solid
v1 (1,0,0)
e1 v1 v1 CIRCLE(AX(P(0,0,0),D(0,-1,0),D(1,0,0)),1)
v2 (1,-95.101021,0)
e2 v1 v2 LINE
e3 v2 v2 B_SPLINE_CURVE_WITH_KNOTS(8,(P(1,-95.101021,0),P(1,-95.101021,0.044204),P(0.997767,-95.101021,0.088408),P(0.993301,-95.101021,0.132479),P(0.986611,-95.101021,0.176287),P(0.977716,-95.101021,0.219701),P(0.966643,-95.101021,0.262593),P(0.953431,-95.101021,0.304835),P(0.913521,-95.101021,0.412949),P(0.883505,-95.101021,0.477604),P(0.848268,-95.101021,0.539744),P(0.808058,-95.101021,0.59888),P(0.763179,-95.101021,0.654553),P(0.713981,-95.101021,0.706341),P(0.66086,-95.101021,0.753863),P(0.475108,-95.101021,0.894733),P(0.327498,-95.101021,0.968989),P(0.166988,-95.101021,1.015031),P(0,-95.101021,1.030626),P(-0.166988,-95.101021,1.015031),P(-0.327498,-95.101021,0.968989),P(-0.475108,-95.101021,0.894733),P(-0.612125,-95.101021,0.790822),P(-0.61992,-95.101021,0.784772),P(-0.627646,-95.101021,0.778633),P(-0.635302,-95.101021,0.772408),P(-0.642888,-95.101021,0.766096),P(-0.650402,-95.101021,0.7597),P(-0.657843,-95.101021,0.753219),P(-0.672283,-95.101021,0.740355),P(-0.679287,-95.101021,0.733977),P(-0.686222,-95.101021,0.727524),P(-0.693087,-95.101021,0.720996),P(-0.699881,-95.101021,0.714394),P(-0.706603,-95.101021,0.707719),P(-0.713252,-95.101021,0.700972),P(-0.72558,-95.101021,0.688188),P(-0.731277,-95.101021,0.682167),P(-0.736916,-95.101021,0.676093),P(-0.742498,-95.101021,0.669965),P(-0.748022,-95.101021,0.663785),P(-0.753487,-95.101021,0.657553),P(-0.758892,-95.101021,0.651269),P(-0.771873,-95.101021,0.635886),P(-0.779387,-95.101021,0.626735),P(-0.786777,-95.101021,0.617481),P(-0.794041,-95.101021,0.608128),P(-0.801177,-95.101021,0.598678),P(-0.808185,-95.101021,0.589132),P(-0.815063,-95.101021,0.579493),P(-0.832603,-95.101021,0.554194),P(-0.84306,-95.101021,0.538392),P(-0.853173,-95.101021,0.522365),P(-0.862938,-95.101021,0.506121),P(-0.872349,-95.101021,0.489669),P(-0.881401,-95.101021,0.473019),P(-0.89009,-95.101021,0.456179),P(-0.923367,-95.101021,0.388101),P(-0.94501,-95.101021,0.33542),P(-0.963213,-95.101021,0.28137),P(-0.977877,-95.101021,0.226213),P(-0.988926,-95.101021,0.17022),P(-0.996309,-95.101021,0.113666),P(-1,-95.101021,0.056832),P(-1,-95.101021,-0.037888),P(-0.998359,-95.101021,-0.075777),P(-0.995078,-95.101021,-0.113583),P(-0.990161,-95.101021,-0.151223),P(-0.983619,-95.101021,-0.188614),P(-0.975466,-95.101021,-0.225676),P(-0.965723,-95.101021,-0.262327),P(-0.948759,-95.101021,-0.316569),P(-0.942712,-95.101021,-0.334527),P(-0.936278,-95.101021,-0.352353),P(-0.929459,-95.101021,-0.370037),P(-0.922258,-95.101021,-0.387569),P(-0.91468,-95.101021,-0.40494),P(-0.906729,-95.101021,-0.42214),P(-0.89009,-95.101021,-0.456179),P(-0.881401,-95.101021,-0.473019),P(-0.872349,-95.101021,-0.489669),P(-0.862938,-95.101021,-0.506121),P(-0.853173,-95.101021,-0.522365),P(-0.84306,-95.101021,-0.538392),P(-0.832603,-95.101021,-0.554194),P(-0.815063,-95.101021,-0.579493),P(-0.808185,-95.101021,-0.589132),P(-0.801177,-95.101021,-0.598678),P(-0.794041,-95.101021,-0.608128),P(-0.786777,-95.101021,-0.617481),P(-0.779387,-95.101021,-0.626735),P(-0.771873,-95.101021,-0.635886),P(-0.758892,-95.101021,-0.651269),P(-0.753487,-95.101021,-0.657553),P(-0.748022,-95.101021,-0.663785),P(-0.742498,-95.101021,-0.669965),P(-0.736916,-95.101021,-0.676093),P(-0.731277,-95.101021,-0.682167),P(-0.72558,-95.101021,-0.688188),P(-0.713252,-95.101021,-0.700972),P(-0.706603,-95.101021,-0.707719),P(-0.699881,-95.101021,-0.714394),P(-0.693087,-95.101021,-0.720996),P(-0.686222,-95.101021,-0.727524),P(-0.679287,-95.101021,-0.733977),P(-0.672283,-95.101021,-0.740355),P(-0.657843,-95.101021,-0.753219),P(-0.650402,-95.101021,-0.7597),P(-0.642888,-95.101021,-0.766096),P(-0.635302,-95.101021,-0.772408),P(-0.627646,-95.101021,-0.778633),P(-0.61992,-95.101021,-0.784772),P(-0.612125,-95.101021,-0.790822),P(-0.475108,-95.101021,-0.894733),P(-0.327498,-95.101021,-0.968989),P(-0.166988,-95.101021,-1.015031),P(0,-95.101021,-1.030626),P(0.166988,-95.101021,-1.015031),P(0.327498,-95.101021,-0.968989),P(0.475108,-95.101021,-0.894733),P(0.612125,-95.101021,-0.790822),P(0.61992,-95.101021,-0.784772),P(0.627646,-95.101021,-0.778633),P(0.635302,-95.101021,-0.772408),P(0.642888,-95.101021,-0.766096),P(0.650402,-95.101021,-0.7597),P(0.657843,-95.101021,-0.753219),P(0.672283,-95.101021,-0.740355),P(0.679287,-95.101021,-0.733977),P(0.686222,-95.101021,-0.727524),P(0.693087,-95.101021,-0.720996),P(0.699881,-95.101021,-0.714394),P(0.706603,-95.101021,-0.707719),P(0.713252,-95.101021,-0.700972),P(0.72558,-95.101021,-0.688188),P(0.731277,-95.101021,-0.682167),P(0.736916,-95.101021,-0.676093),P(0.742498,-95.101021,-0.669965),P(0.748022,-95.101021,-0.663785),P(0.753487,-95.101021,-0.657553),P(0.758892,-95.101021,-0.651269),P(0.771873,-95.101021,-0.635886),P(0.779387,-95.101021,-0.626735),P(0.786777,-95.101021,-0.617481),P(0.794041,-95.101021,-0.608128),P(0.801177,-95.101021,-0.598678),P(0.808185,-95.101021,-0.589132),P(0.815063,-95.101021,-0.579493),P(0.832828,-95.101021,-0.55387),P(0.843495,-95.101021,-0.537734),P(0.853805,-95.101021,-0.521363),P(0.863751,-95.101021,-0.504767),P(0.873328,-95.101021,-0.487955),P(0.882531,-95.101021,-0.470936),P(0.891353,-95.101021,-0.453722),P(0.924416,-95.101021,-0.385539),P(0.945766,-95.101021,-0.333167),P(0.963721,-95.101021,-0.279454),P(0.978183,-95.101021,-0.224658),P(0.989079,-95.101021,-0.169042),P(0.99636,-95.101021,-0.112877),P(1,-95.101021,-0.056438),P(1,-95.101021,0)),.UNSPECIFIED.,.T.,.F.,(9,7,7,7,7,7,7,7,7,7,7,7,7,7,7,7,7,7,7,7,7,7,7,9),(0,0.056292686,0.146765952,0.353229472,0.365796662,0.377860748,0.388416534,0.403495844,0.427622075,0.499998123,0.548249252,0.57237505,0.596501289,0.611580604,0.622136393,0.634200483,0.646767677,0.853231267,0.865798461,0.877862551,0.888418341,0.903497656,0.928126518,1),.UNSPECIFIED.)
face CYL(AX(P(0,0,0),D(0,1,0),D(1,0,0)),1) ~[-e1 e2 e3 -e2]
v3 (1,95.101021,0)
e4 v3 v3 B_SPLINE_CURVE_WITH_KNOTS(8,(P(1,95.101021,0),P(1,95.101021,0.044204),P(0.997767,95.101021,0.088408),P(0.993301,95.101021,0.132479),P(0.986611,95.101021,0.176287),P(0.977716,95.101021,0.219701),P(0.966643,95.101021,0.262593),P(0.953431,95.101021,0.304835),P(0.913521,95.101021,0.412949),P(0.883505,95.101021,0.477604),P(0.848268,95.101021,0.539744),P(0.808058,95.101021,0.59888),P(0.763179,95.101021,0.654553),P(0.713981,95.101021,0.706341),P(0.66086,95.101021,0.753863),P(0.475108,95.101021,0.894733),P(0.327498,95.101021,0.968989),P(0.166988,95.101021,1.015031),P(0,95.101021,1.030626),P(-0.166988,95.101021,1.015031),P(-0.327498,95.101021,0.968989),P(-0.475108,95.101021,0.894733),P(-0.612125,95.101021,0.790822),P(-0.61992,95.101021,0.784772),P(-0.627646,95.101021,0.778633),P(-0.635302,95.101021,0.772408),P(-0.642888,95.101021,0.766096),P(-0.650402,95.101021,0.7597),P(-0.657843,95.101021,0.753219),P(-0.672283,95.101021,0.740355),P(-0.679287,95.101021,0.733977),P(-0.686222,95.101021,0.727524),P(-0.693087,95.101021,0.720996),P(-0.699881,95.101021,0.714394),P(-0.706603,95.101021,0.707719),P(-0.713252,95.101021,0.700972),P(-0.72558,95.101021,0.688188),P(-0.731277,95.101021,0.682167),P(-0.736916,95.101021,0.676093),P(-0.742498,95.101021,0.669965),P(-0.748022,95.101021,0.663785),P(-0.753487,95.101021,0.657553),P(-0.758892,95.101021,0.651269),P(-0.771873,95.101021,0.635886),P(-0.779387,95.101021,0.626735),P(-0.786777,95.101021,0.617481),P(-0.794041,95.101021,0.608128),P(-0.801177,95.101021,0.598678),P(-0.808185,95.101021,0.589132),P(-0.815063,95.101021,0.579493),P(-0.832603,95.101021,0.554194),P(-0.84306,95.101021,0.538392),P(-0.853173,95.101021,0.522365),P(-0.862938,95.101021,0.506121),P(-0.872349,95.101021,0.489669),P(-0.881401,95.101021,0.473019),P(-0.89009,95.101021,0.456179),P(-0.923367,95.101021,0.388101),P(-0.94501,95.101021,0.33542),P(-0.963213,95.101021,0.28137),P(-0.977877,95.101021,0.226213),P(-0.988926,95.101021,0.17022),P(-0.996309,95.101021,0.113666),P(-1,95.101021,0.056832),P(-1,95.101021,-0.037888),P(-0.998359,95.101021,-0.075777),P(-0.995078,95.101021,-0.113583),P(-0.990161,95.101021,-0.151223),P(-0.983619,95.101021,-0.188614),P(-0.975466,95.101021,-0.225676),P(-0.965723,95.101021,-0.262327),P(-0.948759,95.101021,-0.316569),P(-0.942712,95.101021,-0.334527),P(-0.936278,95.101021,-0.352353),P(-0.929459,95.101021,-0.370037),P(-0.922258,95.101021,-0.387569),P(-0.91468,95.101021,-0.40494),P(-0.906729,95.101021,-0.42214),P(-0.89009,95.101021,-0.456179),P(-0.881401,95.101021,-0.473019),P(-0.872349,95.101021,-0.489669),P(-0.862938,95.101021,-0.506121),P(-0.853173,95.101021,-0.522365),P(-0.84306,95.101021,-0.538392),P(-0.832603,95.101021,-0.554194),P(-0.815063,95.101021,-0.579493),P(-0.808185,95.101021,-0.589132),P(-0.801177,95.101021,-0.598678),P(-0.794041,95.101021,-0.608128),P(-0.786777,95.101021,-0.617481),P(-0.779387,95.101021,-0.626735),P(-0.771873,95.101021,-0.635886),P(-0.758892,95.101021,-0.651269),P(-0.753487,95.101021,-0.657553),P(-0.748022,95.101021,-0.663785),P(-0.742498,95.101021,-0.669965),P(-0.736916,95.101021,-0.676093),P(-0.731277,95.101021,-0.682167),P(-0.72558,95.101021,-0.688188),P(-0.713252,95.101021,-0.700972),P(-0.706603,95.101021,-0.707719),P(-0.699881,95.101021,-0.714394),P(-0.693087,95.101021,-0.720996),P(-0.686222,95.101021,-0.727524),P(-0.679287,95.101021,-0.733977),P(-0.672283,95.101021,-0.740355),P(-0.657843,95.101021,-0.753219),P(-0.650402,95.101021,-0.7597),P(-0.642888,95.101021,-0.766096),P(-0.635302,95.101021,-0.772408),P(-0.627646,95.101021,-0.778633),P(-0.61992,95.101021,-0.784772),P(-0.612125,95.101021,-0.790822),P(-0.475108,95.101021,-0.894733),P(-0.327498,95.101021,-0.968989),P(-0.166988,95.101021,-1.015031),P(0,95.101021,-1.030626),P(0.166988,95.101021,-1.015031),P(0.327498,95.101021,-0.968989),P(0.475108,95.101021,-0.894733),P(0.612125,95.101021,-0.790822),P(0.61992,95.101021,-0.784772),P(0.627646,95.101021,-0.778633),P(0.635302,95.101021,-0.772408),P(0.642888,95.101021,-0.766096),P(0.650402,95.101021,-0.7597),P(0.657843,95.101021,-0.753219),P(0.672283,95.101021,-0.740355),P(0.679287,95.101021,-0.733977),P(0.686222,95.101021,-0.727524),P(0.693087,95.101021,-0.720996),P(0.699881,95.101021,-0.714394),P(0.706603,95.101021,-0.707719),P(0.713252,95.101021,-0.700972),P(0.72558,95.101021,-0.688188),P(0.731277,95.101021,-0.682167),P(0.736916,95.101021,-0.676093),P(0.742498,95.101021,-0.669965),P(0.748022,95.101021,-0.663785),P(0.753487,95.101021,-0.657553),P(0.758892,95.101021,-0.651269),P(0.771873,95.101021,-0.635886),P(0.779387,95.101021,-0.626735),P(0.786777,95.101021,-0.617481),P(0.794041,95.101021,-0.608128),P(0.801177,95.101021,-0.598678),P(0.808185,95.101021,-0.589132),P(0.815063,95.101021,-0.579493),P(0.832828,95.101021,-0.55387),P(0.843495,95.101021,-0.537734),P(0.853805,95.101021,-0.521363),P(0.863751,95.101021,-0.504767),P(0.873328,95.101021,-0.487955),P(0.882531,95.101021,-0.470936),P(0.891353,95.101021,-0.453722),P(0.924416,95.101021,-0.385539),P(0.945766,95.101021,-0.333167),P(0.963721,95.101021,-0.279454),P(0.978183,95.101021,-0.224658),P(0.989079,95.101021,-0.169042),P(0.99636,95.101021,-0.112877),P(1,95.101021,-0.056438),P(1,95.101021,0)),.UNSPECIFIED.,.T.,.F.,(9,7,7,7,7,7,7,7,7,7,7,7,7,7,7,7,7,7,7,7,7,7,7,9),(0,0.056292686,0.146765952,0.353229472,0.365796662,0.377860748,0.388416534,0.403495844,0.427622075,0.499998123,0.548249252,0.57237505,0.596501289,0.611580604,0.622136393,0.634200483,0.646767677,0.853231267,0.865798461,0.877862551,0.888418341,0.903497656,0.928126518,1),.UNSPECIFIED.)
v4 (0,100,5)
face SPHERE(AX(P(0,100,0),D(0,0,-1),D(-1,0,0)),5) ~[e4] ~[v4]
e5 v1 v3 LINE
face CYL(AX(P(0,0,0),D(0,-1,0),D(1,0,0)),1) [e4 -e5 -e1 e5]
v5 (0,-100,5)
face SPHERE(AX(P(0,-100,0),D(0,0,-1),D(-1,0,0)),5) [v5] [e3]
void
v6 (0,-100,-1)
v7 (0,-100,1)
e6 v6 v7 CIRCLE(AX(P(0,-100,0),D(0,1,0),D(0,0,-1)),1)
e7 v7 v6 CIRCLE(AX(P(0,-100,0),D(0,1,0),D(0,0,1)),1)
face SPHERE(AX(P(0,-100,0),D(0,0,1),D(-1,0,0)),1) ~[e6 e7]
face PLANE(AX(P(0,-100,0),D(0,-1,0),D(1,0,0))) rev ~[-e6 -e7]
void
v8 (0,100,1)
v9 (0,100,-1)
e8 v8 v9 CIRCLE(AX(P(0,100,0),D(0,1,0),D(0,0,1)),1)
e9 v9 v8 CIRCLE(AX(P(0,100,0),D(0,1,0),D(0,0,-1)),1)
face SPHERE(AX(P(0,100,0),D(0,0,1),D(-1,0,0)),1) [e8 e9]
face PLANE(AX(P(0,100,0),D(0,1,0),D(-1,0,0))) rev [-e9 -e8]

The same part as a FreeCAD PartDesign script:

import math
import FreeCAD as App
import Part
import Sketcher
Q = App.Units.Quantity

doc = App.newDocument("Part")
body = doc.addObject("PartDesign::Body", "Body")

sketch1 = body.newObject("Sketcher::SketchObject", "Sketch")
sketch1.AttachmentSupport = (doc.getObject("XZ_Plane"), [""])
sketch1.MapMode = "FlatFace"
sketch1.addGeometry(Part.Circle(App.Vector(0, 0, 0), App.Vector(0, 0, 1), 1), False)
sketch1.addConstraint(Sketcher.Constraint("Coincident", 0, 3, -1, 1))
sketch1.addConstraint(Sketcher.Constraint("Diameter", 0, Q("2 mm")))
pad1 = body.newObject("PartDesign::Pad", "Pad")
pad1.Profile = sketch1
pad1.Length = 100

sketch2 = body.newObject("Sketcher::SketchObject", "Sketch001")
sketch2.AttachmentSupport = (doc.getObject("XZ_Plane"), [""])
sketch2.MapMode = "FlatFace"
sketch2.AttachmentOffset = App.Placement(App.Vector(0, 0, 100), App.Rotation())
sketch2.addGeometry(Part.LineSegment(App.Vector(0, 1, 0), App.Vector(0, 5, 0)), False)
sketch2.addGeometry(Part.ArcOfCircle(Part.Circle(App.Vector(0, 0, 0), App.Vector(0, 0, 1), 5), math.radians(90), math.radians(270)), False)
sketch2.addGeometry(Part.LineSegment(App.Vector(0, -5, 0), App.Vector(0, -1, 0)), False)
sketch2.addGeometry(Part.ArcOfCircle(Part.Circle(App.Vector(0, 0, 0), App.Vector(0, 0, 1), 1), math.radians(90), math.radians(270)), False)
sketch2.addConstraint(Sketcher.Constraint("Coincident", 0, 2, 1, 1))
sketch2.addConstraint(Sketcher.Constraint("Coincident", 1, 2, 2, 1))
sketch2.addConstraint(Sketcher.Constraint("Coincident", 2, 2, 3, 2))
sketch2.addConstraint(Sketcher.Constraint("Coincident", 3, 1, 0, 1))
sketch2.addConstraint(Sketcher.Constraint("Vertical", 0))
sketch2.addConstraint(Sketcher.Constraint("Vertical", 2))
sketch2.addConstraint(Sketcher.Constraint("Coincident", 1, 3, -1, 1))
sketch2.addConstraint(Sketcher.Constraint("Coincident", 3, 3, -1, 1))
sketch2.addConstraint(Sketcher.Constraint("PointOnObject", 0, 2, -2))
sketch2.addConstraint(Sketcher.Constraint("PointOnObject", 1, 2, -2))
sketch2.addConstraint(Sketcher.Constraint("Radius", 1, Q("5 mm")))
sketch2.addConstraint(Sketcher.Constraint("Radius", 3, Q("1 mm")))
revolution = body.newObject("PartDesign::Revolution", "Revolution")
revolution.Profile = sketch2
revolution.ReferenceAxis = (sketch2, ["V_Axis"])
revolution.Angle = 360
body2 = doc.addObject("PartDesign::Body", "Body001")
doc.recompute()

body2.BaseFeature = body
doc.recompute()

mirroring = doc.addObject("Part::Mirroring", "Mirroring")
mirroring.Source = body
mirroring.Base = App.Vector(0, 0, 0)
mirroring.Normal = App.Vector(0, -1, 0)
body3 = doc.addObject("PartDesign::Body", "Body002")
body3.BaseFeature = mirroring
boolean = body2.newObject("PartDesign::Boolean", "Boolean")
boolean.Type = "Fuse"
boolean.addObjects([body3])
doc.recompute()
mirroring.Visibility = False

doc.recompute()
